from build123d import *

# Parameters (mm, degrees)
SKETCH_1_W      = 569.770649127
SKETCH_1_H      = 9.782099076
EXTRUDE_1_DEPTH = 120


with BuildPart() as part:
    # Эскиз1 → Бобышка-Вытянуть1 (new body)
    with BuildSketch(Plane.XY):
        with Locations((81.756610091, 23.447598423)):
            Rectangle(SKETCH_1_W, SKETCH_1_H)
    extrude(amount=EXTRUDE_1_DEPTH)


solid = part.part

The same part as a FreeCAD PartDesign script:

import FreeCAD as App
import Part
import Sketcher
from FreeCAD import Vector
Q = App.Units.Quantity


def add_polygon(sketch, points):
    """Adds a closed chain of lines whose ends are joined by coincident constraints."""
    first, n = sketch.GeometryCount, len(points)
    for a, b in zip(points, points[1:] + points[:1]):
        sketch.addGeometry(Part.LineSegment(App.Vector(*a, 0), App.Vector(*b, 0)), False)
    for i in range(n):
        sketch.addConstraint(Sketcher.Constraint("Coincident", first + i, 2, first + (i + 1) % n, 1))

doc = App.newDocument("Part")
body = doc.addObject("PartDesign::Body", "Body")

# Sketch on XY plane
sketch1 = body.newObject("Sketcher::SketchObject", "Sketch")
sketch1.AttachmentSupport = (doc.getObject("XY_Plane"), [""])
sketch1.MapMode = "FlatFace"
add_polygon(sketch1, [(-203, 28), (-203, 19), (367, 19), (367, 28)])  # lines 0-3
sketch1.addConstraint(Sketcher.Constraint("Vertical", 0))
sketch1.addConstraint(Sketcher.Constraint("Horizontal", 1))
sketch1.addConstraint(Sketcher.Constraint("Vertical", 2))
sketch1.addConstraint(Sketcher.Constraint("Horizontal", 3))
sketch1.addConstraint(Sketcher.Constraint("DistanceY", 0, 2, 0, 1, Q("9.782099 mm")))
sketch1.addConstraint(Sketcher.Constraint("DistanceX", 1, 1, 1, 2, Q("569.770649 mm")))
sketch1.addConstraint(Sketcher.Constraint("DistanceY", -1, 1, 0, 2, Q("18.556549 mm")))
sketch1.addConstraint(Sketcher.Constraint("DistanceX", 0, 2, -1, 1, Q("203.128714 mm")))
pad1 = body.newObject("PartDesign::Pad", "Pad")
pad1.Profile = sketch1
pad1.Length = 120

doc.recompute()
